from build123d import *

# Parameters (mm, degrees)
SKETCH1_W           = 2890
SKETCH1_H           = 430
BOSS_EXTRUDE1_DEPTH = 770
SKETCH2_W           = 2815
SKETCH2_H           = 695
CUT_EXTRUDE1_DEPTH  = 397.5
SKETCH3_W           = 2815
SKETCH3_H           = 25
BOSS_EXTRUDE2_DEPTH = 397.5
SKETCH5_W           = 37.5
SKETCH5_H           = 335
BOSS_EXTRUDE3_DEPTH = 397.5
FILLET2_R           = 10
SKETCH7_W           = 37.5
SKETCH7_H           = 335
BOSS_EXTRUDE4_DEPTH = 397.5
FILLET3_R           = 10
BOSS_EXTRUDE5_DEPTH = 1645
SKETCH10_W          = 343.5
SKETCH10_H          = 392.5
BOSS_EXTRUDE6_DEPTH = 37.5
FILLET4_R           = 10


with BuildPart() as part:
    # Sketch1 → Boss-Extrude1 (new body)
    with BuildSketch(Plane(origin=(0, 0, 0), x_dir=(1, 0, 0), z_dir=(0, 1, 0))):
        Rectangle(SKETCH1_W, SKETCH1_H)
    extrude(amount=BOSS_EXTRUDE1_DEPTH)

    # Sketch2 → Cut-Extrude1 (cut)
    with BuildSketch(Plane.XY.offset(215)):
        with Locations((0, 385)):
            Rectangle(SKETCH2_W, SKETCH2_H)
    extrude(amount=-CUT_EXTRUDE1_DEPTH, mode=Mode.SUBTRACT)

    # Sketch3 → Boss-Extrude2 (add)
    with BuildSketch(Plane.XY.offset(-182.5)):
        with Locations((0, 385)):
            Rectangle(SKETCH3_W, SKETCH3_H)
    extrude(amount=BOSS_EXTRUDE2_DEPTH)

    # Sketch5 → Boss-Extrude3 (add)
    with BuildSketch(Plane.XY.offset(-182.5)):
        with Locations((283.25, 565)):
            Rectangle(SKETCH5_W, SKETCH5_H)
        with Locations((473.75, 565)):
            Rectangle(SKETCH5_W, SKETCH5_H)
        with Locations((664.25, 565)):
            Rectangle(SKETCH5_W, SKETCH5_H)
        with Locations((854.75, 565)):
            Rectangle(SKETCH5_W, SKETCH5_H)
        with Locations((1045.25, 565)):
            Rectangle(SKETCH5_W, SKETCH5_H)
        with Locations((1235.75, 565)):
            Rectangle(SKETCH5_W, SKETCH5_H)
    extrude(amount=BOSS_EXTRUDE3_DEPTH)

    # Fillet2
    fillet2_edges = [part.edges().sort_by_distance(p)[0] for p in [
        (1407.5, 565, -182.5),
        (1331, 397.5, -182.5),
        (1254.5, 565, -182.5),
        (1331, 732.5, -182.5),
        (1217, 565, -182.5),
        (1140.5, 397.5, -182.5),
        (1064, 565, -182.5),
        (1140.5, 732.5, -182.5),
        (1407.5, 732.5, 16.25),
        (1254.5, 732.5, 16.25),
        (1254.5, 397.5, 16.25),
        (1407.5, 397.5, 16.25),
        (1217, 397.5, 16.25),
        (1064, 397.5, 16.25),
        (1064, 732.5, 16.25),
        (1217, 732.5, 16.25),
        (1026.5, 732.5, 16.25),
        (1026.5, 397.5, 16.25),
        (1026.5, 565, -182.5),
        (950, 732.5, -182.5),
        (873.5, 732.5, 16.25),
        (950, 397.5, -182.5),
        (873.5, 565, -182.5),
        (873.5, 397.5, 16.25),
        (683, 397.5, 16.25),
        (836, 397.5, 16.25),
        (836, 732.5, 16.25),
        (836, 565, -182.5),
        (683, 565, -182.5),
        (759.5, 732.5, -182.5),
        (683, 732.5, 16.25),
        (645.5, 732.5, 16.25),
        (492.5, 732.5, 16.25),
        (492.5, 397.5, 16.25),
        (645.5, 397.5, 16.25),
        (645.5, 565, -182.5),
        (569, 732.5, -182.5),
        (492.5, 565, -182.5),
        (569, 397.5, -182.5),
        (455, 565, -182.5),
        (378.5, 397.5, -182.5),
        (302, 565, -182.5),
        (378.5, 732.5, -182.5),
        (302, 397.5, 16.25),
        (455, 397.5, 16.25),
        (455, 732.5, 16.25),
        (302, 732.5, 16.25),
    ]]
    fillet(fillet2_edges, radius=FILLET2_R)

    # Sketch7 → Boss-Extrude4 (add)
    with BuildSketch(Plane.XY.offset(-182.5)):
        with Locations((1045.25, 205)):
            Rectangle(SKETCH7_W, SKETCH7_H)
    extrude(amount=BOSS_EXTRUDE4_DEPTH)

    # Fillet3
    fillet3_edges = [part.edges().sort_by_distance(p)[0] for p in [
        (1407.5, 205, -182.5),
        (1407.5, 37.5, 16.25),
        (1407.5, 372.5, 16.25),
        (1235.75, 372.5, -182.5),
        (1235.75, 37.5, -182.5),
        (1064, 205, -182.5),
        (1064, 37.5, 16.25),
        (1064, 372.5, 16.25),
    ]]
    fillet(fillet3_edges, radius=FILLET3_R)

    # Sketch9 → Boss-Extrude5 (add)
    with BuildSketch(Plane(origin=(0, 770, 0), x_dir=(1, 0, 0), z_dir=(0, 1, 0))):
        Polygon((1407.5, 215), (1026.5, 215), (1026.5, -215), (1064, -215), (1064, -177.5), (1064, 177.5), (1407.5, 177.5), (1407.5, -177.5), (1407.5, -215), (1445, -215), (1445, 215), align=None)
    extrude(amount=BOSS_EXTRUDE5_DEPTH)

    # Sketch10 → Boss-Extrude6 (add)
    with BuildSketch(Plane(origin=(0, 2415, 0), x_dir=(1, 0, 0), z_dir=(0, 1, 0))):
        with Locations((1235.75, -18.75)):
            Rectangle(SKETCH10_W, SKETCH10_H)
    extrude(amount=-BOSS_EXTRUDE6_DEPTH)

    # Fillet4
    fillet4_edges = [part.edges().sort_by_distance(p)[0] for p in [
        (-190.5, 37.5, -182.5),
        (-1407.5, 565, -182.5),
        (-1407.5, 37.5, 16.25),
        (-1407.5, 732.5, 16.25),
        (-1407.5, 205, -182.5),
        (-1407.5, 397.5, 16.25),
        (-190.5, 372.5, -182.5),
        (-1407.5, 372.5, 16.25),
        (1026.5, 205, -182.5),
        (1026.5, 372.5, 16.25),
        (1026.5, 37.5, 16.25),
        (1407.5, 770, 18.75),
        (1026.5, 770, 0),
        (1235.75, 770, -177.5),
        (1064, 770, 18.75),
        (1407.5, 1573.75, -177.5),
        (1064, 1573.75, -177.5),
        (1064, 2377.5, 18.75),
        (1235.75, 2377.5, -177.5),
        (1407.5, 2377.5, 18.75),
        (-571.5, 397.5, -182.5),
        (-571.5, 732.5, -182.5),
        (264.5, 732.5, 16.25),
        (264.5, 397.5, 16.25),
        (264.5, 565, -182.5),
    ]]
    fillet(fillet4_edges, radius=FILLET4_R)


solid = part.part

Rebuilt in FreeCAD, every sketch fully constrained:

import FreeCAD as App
import Part
import Sketcher

V = App.Vector


def edges_at(feature, points):
    """Names of the edges that pass closest to the given points."""
    edges = feature.Shape.Edges
    near = lambda p: min(range(len(edges)), key=lambda i: edges[i].distToShape(Part.Vertex(*p))[0])
    return sorted({f"Edge{near(p) + 1}" for p in points})


def add_polygon(sketch, points):
    """Adds a closed chain of lines whose ends are joined by coincident constraints."""
    first, n = sketch.GeometryCount, len(points)
    for a, b in zip(points, points[1:] + points[:1]):
        sketch.addGeometry(Part.LineSegment(App.Vector(*a, 0), App.Vector(*b, 0)), False)
    for i in range(n):
        sketch.addConstraint(Sketcher.Constraint("Coincident", first + i, 2, first + (i + 1) % n, 1))

doc = App.newDocument("Part")
body = doc.addObject("PartDesign::Body", "Body")

sketch1 = body.newObject("Sketcher::SketchObject", "Sketch")
sketch1.AttachmentSupport = (doc.getObject("XZ_Plane"), [""])
sketch1.MapMode = "FlatFace"
add_polygon(sketch1, [(-1445, -215), (-1445, 215), (1445, 215), (1445, -215)])
sketch1.addConstraint(Sketcher.Constraint("Vertical", 0))
sketch1.addConstraint(Sketcher.Constraint("Horizontal", 1))
sketch1.addConstraint(Sketcher.Constraint("Vertical", 2))
sketch1.addConstraint(Sketcher.Constraint("Horizontal", 3))
sketch1.addConstraint(Sketcher.Constraint("Symmetric", 0, 2, 2, 2, -1, 1))
sketch1.addConstraint(Sketcher.Constraint("DistanceX", 1, 1, 1, 2, 2890.0))
sketch1.addConstraint(Sketcher.Constraint("DistanceY", 0, 1, 0, 2, 430.0))
pad1 = body.newObject("PartDesign::Pad", "Pad")
pad1.Profile = sketch1
pad1.Length = 770
pad1.Reversed = True

sketch2 = body.newObject("Sketcher::SketchObject", "Sketch001")
sketch2.AttachmentSupport = (doc.getObject("XY_Plane"), [""])
sketch2.MapMode = "FlatFace"
sketch2.AttachmentOffset = App.Placement(V(0, 0, 215), App.Rotation())
add_polygon(sketch2, [(-1408, 732), (-1408, 38), (1408, 38), (1408, 732)])
sketch2.addConstraint(Sketcher.Constraint("Vertical", 0))
sketch2.addConstraint(Sketcher.Constraint("Horizontal", 1))
sketch2.addConstraint(Sketcher.Constraint("Vertical", 2))
sketch2.addConstraint(Sketcher.Constraint("Horizontal", 3))
sketch2.addConstraint(Sketcher.Constraint("DistanceX", 1, 1, 1, 2, 2815.0))
sketch2.addConstraint(Sketcher.Constraint("DistanceY", 0, 2, 0, 1, 695.0))
sketch2.addConstraint(Sketcher.Constraint("DistanceX", 0, 2, -1, 1, 1407.5))
sketch2.addConstraint(Sketcher.Constraint("DistanceY", -1, 1, 0, 2, 37.5))
pocket1 = body.newObject("PartDesign::Pocket", "Pocket")
pocket1.Profile = sketch2
pocket1.Length = 397.5

sketch3 = body.newObject("Sketcher::SketchObject", "Sketch002")
sketch3.AttachmentSupport = (doc.getObject("XY_Plane"), [""])
sketch3.MapMode = "FlatFace"
sketch3.AttachmentOffset = App.Placement(V(0, 0, -182.5), App.Rotation())
add_polygon(sketch3, [(-1408, 398), (-1408, 372), (1408, 372), (1408, 398)])
sketch3.addConstraint(Sketcher.Constraint("Vertical", 0))
sketch3.addConstraint(Sketcher.Constraint("Horizontal", 1))
sketch3.addConstraint(Sketcher.Constraint("Vertical", 2))
sketch3.addConstraint(Sketcher.Constraint("Horizontal", 3))
sketch3.addConstraint(Sketcher.Constraint("DistanceX", 1, 1, 1, 2, 2815.0))
sketch3.addConstraint(Sketcher.Constraint("DistanceY", 0, 2, 0, 1, 25.0))
sketch3.addConstraint(Sketcher.Constraint("DistanceX", 0, 2, -1, 1, 1407.5))
sketch3.addConstraint(Sketcher.Constraint("DistanceY", -1, 1, 0, 2, 372.5))
pad2 = body.newObject("PartDesign::Pad", "Pad001")
pad2.Profile = sketch3
pad2.Length = 397.5

sketch4 = body.newObject("Sketcher::SketchObject", "Sketch003")
sketch4.AttachmentSupport = (doc.getObject("XY_Plane"), [""])
sketch4.MapMode = "FlatFace"
sketch4.AttachmentOffset = App.Placement(V(0, 0, -182.5), App.Rotation())
add_polygon(sketch4, [(264, 732), (264, 398), (302, 398), (302, 732)])
add_polygon(sketch4, [(455, 732), (455, 398), (492, 398), (492, 732)])
add_polygon(sketch4, [(646, 732), (646, 398), (683, 398), (683, 732)])
add_polygon(sketch4, [(836, 732), (836, 398), (874, 398), (874, 732)])
add_polygon(sketch4, [(1026, 732), (1026, 398), (1064, 398), (1064, 732)])
add_polygon(sketch4, [(1217, 732), (1217, 398), (1254, 398), (1254, 732)])
sketch4.addConstraint(Sketcher.Constraint("Vertical", 0))
sketch4.addConstraint(Sketcher.Constraint("Horizontal", 1))
sketch4.addConstraint(Sketcher.Constraint("Vertical", 2))
sketch4.addConstraint(Sketcher.Constraint("Horizontal", 3))
sketch4.addConstraint(Sketcher.Constraint("Vertical", 4))
sketch4.addConstraint(Sketcher.Constraint("Horizontal", 5))
sketch4.addConstraint(Sketcher.Constraint("Vertical", 6))
sketch4.addConstraint(Sketcher.Constraint("Horizontal", 7))
sketch4.addConstraint(Sketcher.Constraint("Vertical", 8))
sketch4.addConstraint(Sketcher.Constraint("Horizontal", 9))
sketch4.addConstraint(Sketcher.Constraint("Vertical", 10))
sketch4.addConstraint(Sketcher.Constraint("Horizontal", 11))
sketch4.addConstraint(Sketcher.Constraint("Vertical", 12))
sketch4.addConstraint(Sketcher.Constraint("Horizontal", 13))
sketch4.addConstraint(Sketcher.Constraint("Vertical", 14))
sketch4.addConstraint(Sketcher.Constraint("Horizontal", 15))
sketch4.addConstraint(Sketcher.Constraint("Vertical", 16))
sketch4.addConstraint(Sketcher.Constraint("Horizontal", 17))
sketch4.addConstraint(Sketcher.Constraint("Vertical", 18))
sketch4.addConstraint(Sketcher.Constraint("Horizontal", 19))
sketch4.addConstraint(Sketcher.Constraint("Vertical", 20))
sketch4.addConstraint(Sketcher.Constraint("Horizontal", 21))
sketch4.addConstraint(Sketcher.Constraint("Vertical", 22))
sketch4.addConstraint(Sketcher.Constraint("Horizontal", 23))
sketch4.addConstraint(Sketcher.Constraint("Horizontal", 1, 2, 4, 2))
sketch4.addConstraint(Sketcher.Constraint("Horizontal", 3, 2, 6, 2))
sketch4.addConstraint(Sketcher.Constraint("Horizontal", 5, 2, 8, 2))
sketch4.addConstraint(Sketcher.Constraint("Horizontal", 7, 2, 10, 2))
sketch4.addConstraint(Sketcher.Constraint("Horizontal", 9, 2, 12, 2))
sketch4.addConstraint(Sketcher.Constraint("Horizontal", 11, 2, 14, 2))
sketch4.addConstraint(Sketcher.Constraint("Horizontal", 13, 2, 16, 2))
sketch4.addConstraint(Sketcher.Constraint("Horizontal", 15, 2, 18, 2))
sketch4.addConstraint(Sketcher.Constraint("Horizontal", 17, 2, 20, 2))
sketch4.addConstraint(Sketcher.Constraint("Horizontal", 19, 2, 22, 2))
sketch4.addConstraint(Sketcher.Constraint("Equal", 3, 5))
sketch4.addConstraint(Sketcher.Constraint("Equal", 7, 9))
sketch4.addConstraint(Sketcher.Constraint("Equal", 11, 13))
sketch4.addConstraint(Sketcher.Constraint("Equal", 15, 17))
sketch4.addConstraint(Sketcher.Constraint("Equal", 19, 21))
sketch4.addConstraint(Sketcher.Constraint("DistanceY", 0, 2, 0, 1, 335.0))
sketch4.addConstraint(Sketcher.Constraint("DistanceX", 1, 1, 1, 2, 37.5))
sketch4.addConstraint(Sketcher.Constraint("DistanceX", -1, 1, 1, 2, 302.0))
sketch4.addConstraint(Sketcher.Constraint("DistanceX", -1, 1, 4, 2, 455.0))
sketch4.addConstraint(Sketcher.Constraint("DistanceX", -1, 1, 9, 2, 683.0))
sketch4.addConstraint(Sketcher.Constraint("DistanceX", -1, 1, 12, 2, 836.0))
sketch4.addConstraint(Sketcher.Constraint("DistanceX", -1, 1, 17, 2, 1064.0))
sketch4.addConstraint(Sketcher.Constraint("DistanceX", -1, 1, 20, 2, 1217.0))
sketch4.addConstraint(Sketcher.Constraint("DistanceY", -1, 1, 0, 2, 397.5))
pad3 = body.newObject("PartDesign::Pad", "Pad002")
pad3.Profile = sketch4
pad3.Length = 397.5
doc.recompute()

fillet = body.newObject("PartDesign::Fillet", "Fillet")
fillet.Base = (pad3, edges_at(pad3, [
    (1407.5, 565, -182.5),
    (1331, 397.5, -182.5),
    (1254.5, 565, -182.5),
    (1331, 732.5, -182.5),
    (1217, 565, -182.5),
    (1140.5, 397.5, -182.5),
    (1064, 565, -182.5),
    (1140.5, 732.5, -182.5),
    (1407.5, 732.5, 16.25),
    (1254.5, 732.5, 16.25),
    (1254.5, 397.5, 16.25),
    (1407.5, 397.5, 16.25),
    (1217, 397.5, 16.25),
    (1064, 397.5, 16.25),
    (1064, 732.5, 16.25),
    (1217, 732.5, 16.25),
    (1026.5, 732.5, 16.25),
    (1026.5, 397.5, 16.25),
    (1026.5, 565, -182.5),
    (950, 732.5, -182.5),
    (873.5, 732.5, 16.25),
    (950, 397.5, -182.5),
    (873.5, 565, -182.5),
    (873.5, 397.5, 16.25),
    (683, 397.5, 16.25),
    (836, 397.5, 16.25),
    (836, 732.5, 16.25),
    (836, 565, -182.5),
    (683, 565, -182.5),
    (759.5, 732.5, -182.5),
    (683, 732.5, 16.25),
    (645.5, 732.5, 16.25),
    (492.5, 732.5, 16.25),
    (492.5, 397.5, 16.25),
    (645.5, 397.5, 16.25),
    (645.5, 565, -182.5),
    (569, 732.5, -182.5),
    (492.5, 565, -182.5),
    (569, 397.5, -182.5),
    (455, 565, -182.5),
    (378.5, 397.5, -182.5),
    (302, 565, -182.5),
    (378.5, 732.5, -182.5),
    (302, 397.5, 16.25),
    (455, 397.5, 16.25),
    (455, 732.5, 16.25),
    (302, 732.5, 16.25),
]))
fillet.Radius = 10

sketch5 = body.newObject("Sketcher::SketchObject", "Sketch004")
sketch5.AttachmentSupport = (doc.getObject("XY_Plane"), [""])
sketch5.MapMode = "FlatFace"
sketch5.AttachmentOffset = App.Placement(V(0, 0, -182.5), App.Rotation())
add_polygon(sketch5, [(1026, 372), (1026, 38), (1064, 38), (1064, 372)])
sketch5.addConstraint(Sketcher.Constraint("Vertical", 0))
sketch5.addConstraint(Sketcher.Constraint("Horizontal", 1))
sketch5.addConstraint(Sketcher.Constraint("Vertical", 2))
sketch5.addConstraint(Sketcher.Constraint("Horizontal", 3))
sketch5.addConstraint(Sketcher.Constraint("DistanceY", 0, 2, 0, 1, 335.0))
sketch5.addConstraint(Sketcher.Constraint("DistanceX", 1, 1, 1, 2, 37.5))
sketch5.addConstraint(Sketcher.Constraint("DistanceX", -1, 1, 1, 2, 1064.0))
sketch5.addConstraint(Sketcher.Constraint("DistanceY", -1, 1, 0, 2, 37.5))
pad4 = body.newObject("PartDesign::Pad", "Pad003")
pad4.Profile = sketch5
pad4.Length = 397.5
doc.recompute()

fillet2 = body.newObject("PartDesign::Fillet", "Fillet001")
fillet2.Base = (pad4, edges_at(pad4, [
    (1407.5, 205, -182.5),
    (1407.5, 37.5, 16.25),
    (1407.5, 372.5, 16.25),
    (1235.75, 372.5, -182.5),
    (1235.75, 37.5, -182.5),
    (1064, 205, -182.5),
    (1064, 37.5, 16.25),
    (1064, 372.5, 16.25),
]))
fillet2.Radius = 10

sketch6 = body.newObject("Sketcher::SketchObject", "Sketch005")
sketch6.AttachmentSupport = (doc.getObject("XZ_Plane"), [""])
sketch6.MapMode = "FlatFace"
sketch6.AttachmentOffset = App.Placement(V(0, 0, -770), App.Rotation())
add_polygon(sketch6, [(1026, -215), (1026, 215), (1064, 215), (1064, -178), (1408, -178), (1408, 215), (1445, 215), (1445, -215)])
sketch6.addConstraint(Sketcher.Constraint("Vertical", 0))
sketch6.addConstraint(Sketcher.Constraint("Horizontal", 1))
sketch6.addConstraint(Sketcher.Constraint("Vertical", 2))
sketch6.addConstraint(Sketcher.Constraint("Horizontal", 3))
sketch6.addConstraint(Sketcher.Constraint("Vertical", 4))
sketch6.addConstraint(Sketcher.Constraint("Horizontal", 5))
sketch6.addConstraint(Sketcher.Constraint("Vertical", 6))
sketch6.addConstraint(Sketcher.Constraint("Horizontal", 7))
sketch6.addConstraint(Sketcher.Constraint("Horizontal", 1, 2, 4, 2))
sketch6.addConstraint(Sketcher.Constraint("Equal", 1, 5))
sketch6.addConstraint(Sketcher.Constraint("DistanceY", 0, 1, 0, 2, 430.0))
sketch6.addConstraint(Sketcher.Constraint("DistanceX", 1, 1, 1, 2, 37.5))
sketch6.addConstraint(Sketcher.Constraint("DistanceX", 3, 1, 3, 2, 343.5))
sketch6.addConstraint(Sketcher.Constraint("DistanceY", 2, 2, 2, 1, 392.5))
sketch6.addConstraint(Sketcher.Constraint("DistanceY", -1, 1, 0, 2, 215.0))
sketch6.addConstraint(Sketcher.Constraint("DistanceX", -1, 1, 1, 2, 1064.0))
pad5 = body.newObject("PartDesign::Pad", "Pad004")
pad5.Profile = sketch6
pad5.Length = 1645
pad5.Reversed = True

sketch7 = body.newObject("Sketcher::SketchObject", "Sketch006")
sketch7.AttachmentSupport = (doc.getObject("XZ_Plane"), [""])
sketch7.MapMode = "FlatFace"
sketch7.AttachmentOffset = App.Placement(V(0, 0, -2415), App.Rotation())
add_polygon(sketch7, [(1064, -178), (1064, 215), (1408, 215), (1408, -178)])
sketch7.addConstraint(Sketcher.Constraint("Vertical", 0))
sketch7.addConstraint(Sketcher.Constraint("Horizontal", 1))
sketch7.addConstraint(Sketcher.Constraint("Vertical", 2))
sketch7.addConstraint(Sketcher.Constraint("Horizontal", 3))
sketch7.addConstraint(Sketcher.Constraint("DistanceX", 1, 1, 1, 2, 343.5))
sketch7.addConstraint(Sketcher.Constraint("DistanceY", 0, 1, 0, 2, 392.5))
sketch7.addConstraint(Sketcher.Constraint("DistanceX", -1, 1, 0, 2, 1064.0))
sketch7.addConstraint(Sketcher.Constraint("DistanceY", -1, 1, 0, 2, 215.0))
pad6 = body.newObject("PartDesign::Pad", "Pad005")
pad6.Profile = sketch7
pad6.Length = 37.5
doc.recompute()

fillet3 = body.newObject("PartDesign::Fillet", "Fillet002")
fillet3.Base = (pad6, edges_at(pad6, [
    (-190.5, 37.5, -182.5),
    (-1407.5, 565, -182.5),
    (-1407.5, 37.5, 16.25),
    (-1407.5, 732.5, 16.25),
    (-1407.5, 205, -182.5),
    (-1407.5, 397.5, 16.25),
    (-190.5, 372.5, -182.5),
    (-1407.5, 372.5, 16.25),
    (1026.5, 205, -182.5),
    (1026.5, 372.5, 16.25),
    (1026.5, 37.5, 16.25),
    (1407.5, 770, 18.75),
    (1026.5, 770, 0),
    (1235.75, 770, -177.5),
    (1064, 770, 18.75),
    (1407.5, 1573.75, -177.5),
    (1064, 1573.75, -177.5),
    (1064, 2377.5, 18.75),
    (1235.75, 2377.5, -177.5),
    (1407.5, 2377.5, 18.75),
    (-571.5, 397.5, -182.5),
    (-571.5, 732.5, -182.5),
    (264.5, 732.5, 16.25),
    (264.5, 397.5, 16.25),
    (264.5, 565, -182.5),
]))
fillet3.Radius = 10

doc.recompute()
